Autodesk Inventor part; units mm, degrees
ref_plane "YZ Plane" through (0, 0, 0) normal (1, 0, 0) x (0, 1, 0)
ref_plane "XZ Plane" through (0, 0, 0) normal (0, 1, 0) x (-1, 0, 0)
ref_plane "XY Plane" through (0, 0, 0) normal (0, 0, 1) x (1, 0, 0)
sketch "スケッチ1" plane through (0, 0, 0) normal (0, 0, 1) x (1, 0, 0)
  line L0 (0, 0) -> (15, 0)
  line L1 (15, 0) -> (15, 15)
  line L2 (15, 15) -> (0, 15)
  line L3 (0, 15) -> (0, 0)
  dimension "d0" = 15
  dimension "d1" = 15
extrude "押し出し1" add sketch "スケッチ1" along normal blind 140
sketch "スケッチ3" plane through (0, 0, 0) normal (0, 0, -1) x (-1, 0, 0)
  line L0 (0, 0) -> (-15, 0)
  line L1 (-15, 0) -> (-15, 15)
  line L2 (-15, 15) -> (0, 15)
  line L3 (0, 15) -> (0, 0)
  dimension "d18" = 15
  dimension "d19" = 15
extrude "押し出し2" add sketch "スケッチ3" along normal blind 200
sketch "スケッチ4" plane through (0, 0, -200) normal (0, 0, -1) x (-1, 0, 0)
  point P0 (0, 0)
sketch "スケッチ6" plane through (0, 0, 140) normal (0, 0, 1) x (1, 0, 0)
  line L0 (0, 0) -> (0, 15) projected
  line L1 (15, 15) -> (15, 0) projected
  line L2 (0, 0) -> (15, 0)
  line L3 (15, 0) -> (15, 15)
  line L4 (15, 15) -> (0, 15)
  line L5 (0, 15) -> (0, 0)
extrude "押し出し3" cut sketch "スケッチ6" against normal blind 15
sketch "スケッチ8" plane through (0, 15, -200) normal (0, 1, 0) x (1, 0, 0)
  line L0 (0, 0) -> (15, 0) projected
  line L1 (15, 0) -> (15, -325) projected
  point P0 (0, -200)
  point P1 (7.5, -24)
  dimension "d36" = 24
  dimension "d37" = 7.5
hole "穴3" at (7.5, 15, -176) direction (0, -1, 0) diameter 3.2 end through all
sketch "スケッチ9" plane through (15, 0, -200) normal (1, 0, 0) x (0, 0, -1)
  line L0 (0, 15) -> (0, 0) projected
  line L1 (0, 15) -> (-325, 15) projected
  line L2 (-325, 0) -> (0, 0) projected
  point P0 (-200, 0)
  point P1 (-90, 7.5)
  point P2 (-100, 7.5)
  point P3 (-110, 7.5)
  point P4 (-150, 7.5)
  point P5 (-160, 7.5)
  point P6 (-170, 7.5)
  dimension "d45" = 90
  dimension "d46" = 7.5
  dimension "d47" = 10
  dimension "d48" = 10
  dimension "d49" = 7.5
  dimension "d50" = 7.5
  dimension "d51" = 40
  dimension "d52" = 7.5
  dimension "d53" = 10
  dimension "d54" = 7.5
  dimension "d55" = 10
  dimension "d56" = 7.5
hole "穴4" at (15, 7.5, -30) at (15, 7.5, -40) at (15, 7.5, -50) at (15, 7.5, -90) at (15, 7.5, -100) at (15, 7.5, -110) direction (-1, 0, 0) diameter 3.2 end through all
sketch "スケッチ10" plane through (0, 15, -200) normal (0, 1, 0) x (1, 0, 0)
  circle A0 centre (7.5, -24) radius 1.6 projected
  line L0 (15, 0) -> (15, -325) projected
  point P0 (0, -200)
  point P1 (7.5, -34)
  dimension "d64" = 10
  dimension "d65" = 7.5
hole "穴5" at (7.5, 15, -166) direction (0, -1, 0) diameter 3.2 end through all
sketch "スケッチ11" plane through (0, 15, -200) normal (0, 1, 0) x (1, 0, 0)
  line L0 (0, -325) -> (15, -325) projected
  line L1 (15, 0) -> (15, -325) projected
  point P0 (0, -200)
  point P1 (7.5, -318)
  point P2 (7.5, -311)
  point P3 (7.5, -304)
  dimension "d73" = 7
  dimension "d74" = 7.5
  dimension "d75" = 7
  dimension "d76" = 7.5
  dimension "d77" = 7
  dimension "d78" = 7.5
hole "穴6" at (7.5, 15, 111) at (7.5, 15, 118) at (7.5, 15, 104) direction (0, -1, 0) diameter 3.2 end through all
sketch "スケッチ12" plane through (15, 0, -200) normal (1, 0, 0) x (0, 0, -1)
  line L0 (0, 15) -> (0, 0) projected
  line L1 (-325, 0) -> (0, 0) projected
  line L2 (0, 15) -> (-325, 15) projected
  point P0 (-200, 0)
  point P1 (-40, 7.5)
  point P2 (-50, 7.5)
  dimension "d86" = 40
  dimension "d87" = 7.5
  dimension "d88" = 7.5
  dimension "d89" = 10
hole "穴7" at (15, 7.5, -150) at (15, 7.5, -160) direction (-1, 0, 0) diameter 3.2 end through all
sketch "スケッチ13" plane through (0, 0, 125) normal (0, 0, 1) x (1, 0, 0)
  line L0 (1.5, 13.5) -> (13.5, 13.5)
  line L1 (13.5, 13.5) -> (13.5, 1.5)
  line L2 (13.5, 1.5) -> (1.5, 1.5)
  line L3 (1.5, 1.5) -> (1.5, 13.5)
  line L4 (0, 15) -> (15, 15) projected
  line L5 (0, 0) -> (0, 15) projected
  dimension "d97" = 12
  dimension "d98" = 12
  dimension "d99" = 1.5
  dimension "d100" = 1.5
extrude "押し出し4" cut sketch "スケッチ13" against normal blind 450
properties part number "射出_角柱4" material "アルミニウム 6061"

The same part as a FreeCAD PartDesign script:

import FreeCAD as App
import Part
import Sketcher


def add_polygon(sketch, points):
    """Adds a closed chain of lines whose ends are joined by coincident constraints."""
    first, n = sketch.GeometryCount, len(points)
    for a, b in zip(points, points[1:] + points[:1]):
        sketch.addGeometry(Part.LineSegment(App.Vector(*a, 0), App.Vector(*b, 0)), False)
    for i in range(n):
        sketch.addConstraint(Sketcher.Constraint("Coincident", first + i, 2, first + (i + 1) % n, 1))

doc = App.newDocument("Part")
body = doc.addObject("PartDesign::Body", "Body")

sketch1 = doc.addObject("Sketcher::SketchObject", "Sketch")
body.addObject(sketch1)
sketch1.AttachmentSupport = (doc.XY_Plane, [""])
sketch1.MapMode = "FlatFace"
add_polygon(sketch1, [(0, 15), (0, 0), (15, 0), (15, 15)])
sketch1.addConstraint(Sketcher.Constraint("Vertical", 0))
sketch1.addConstraint(Sketcher.Constraint("Horizontal", 1))
sketch1.addConstraint(Sketcher.Constraint("Vertical", 2))
sketch1.addConstraint(Sketcher.Constraint("Horizontal", 3))
sketch1.addConstraint(Sketcher.Constraint("Coincident", 0, 2, -1, 1))
sketch1.addConstraint(Sketcher.Constraint("Equal", 3, 0))
sketch1.addConstraint(Sketcher.Constraint("DistanceX", 1, 1, 1, 2, 15.0))
pad1 = doc.addObject("PartDesign::Pad", "Pad")
body.addObject(pad1)
pad1.Profile = sketch1
pad1.Length = 140

sketch2 = doc.addObject("Sketcher::SketchObject", "Sketch001")
body.addObject(sketch2)
sketch2.AttachmentSupport = (doc.XY_Plane, [""])
sketch2.MapMode = "FlatFace"
add_polygon(sketch2, [(15, 0), (0, 0), (0, 15), (15, 15)])
sketch2.addConstraint(Sketcher.Constraint("Horizontal", 0))
sketch2.addConstraint(Sketcher.Constraint("Vertical", 1))
sketch2.addConstraint(Sketcher.Constraint("Horizontal", 2))
sketch2.addConstraint(Sketcher.Constraint("Vertical", 3))
sketch2.addConstraint(Sketcher.Constraint("Coincident", 0, 2, -1, 1))
sketch2.addConstraint(Sketcher.Constraint("Equal", 2, 1))
sketch2.addConstraint(Sketcher.Constraint("DistanceX", 0, 2, 0, 1, 15.0))
pad2 = doc.addObject("PartDesign::Pad", "Pad001")
body.addObject(pad2)
pad2.Profile = sketch2
pad2.Length = 200
pad2.Reversed = True

sketch3 = doc.addObject("Sketcher::SketchObject", "Sketch002")
body.addObject(sketch3)
sketch3.AttachmentSupport = (doc.XY_Plane, [""])
sketch3.MapMode = "FlatFace"
sketch3.AttachmentOffset = App.Placement(App.Vector(0, 0, 140), App.Rotation())
add_polygon(sketch3, [(0, 15), (0, 0), (15, 0), (15, 15)])
sketch3.addConstraint(Sketcher.Constraint("Vertical", 0))
sketch3.addConstraint(Sketcher.Constraint("Horizontal", 1))
sketch3.addConstraint(Sketcher.Constraint("Vertical", 2))
sketch3.addConstraint(Sketcher.Constraint("Horizontal", 3))
sketch3.addConstraint(Sketcher.Constraint("Coincident", 0, 2, -1, 1))
sketch3.addConstraint(Sketcher.Constraint("Equal", 3, 0))
sketch3.addConstraint(Sketcher.Constraint("DistanceX", 1, 1, 1, 2, 15.0))
pocket1 = doc.addObject("PartDesign::Pocket", "Pocket")
body.addObject(pocket1)
pocket1.Profile = sketch3
pocket1.Length = 15

sketch4 = doc.addObject("Sketcher::SketchObject", "Sketch003")
body.addObject(sketch4)
sketch4.AttachmentSupport = (doc.XZ_Plane, [""])
sketch4.MapMode = "FlatFace"
sketch4.AttachmentOffset = App.Placement(App.Vector(0, 0, -15), App.Rotation())
sketch4.addGeometry(Part.Circle(App.Vector(7.5, -176, 0), App.Vector(0, 0, 1), 1.6), False)
sketch4.addConstraint(Sketcher.Constraint("Diameter", 0, 3.2))
sketch4.addConstraint(Sketcher.Constraint("DistanceY", 0, 3, -1, 1, 176.0))
sketch4.addConstraint(Sketcher.Constraint("DistanceX", -1, 1, 0, 3, 7.5))
doc.recompute()
hole = doc.addObject("PartDesign::Hole", "Hole")
body.addObject(hole)
hole.Profile = sketch4
hole.ThreadType = "None"
hole.Diameter = 3.2
hole.DepthType = "ThroughAll"
hole.Reversed = True

sketch5 = doc.addObject("Sketcher::SketchObject", "Sketch004")
body.addObject(sketch5)
sketch5.AttachmentSupport = (doc.YZ_Plane, [""])
sketch5.MapMode = "FlatFace"
sketch5.AttachmentOffset = App.Placement(App.Vector(0, 0, 15), App.Rotation())
sketch5.addGeometry(Part.Circle(App.Vector(7.5, -30, 0), App.Vector(0, 0, 1), 1.6), False)
sketch5.addGeometry(Part.Circle(App.Vector(7.5, -40, 0), App.Vector(0, 0, 1), 1.6), False)
sketch5.addGeometry(Part.Circle(App.Vector(7.5, -50, 0), App.Vector(0, 0, 1), 1.6), False)
sketch5.addGeometry(Part.Circle(App.Vector(7.5, -90, 0), App.Vector(0, 0, 1), 1.6), False)
sketch5.addGeometry(Part.Circle(App.Vector(7.5, -100, 0), App.Vector(0, 0, 1), 1.6), False)
sketch5.addGeometry(Part.Circle(App.Vector(7.5, -110, 0), App.Vector(0, 0, 1), 1.6), False)
sketch5.addConstraint(Sketcher.Constraint("Equal", 0, 1))
sketch5.addConstraint(Sketcher.Constraint("Equal", 1, 2))
sketch5.addConstraint(Sketcher.Constraint("Equal", 2, 3))
sketch5.addConstraint(Sketcher.Constraint("Equal", 3, 4))
sketch5.addConstraint(Sketcher.Constraint("Equal", 4, 5))
sketch5.addConstraint(Sketcher.Constraint("Vertical", 0, 3, 1, 3))
sketch5.addConstraint(Sketcher.Constraint("Vertical", 1, 3, 2, 3))
sketch5.addConstraint(Sketcher.Constraint("Vertical", 2, 3, 3, 3))
sketch5.addConstraint(Sketcher.Constraint("Vertical", 3, 3, 4, 3))
sketch5.addConstraint(Sketcher.Constraint("Vertical", 4, 3, 5, 3))
sketch5.addConstraint(Sketcher.Constraint("Diameter", 0, 3.2))
sketch5.addConstraint(Sketcher.Constraint("DistanceY", 0, 3, -1, 1, 30.0))
sketch5.addConstraint(Sketcher.Constraint("DistanceY", 1, 3, -1, 1, 40.0))
sketch5.addConstraint(Sketcher.Constraint("DistanceY", 2, 3, -1, 1, 50.0))
sketch5.addConstraint(Sketcher.Constraint("DistanceY", 3, 3, -1, 1, 90.0))
sketch5.addConstraint(Sketcher.Constraint("DistanceY", 4, 3, -1, 1, 100.0))
sketch5.addConstraint(Sketcher.Constraint("DistanceY", 5, 3, -1, 1, 110.0))
sketch5.addConstraint(Sketcher.Constraint("DistanceX", -1, 1, 0, 3, 7.5))
doc.recompute()
hole2 = doc.addObject("PartDesign::Hole", "Hole001")
body.addObject(hole2)
hole2.Profile = sketch5
hole2.ThreadType = "None"
hole2.Diameter = 3.2
hole2.DepthType = "ThroughAll"

sketch6 = doc.addObject("Sketcher::SketchObject", "Sketch005")
body.addObject(sketch6)
sketch6.AttachmentSupport = (doc.XZ_Plane, [""])
sketch6.MapMode = "FlatFace"
sketch6.AttachmentOffset = App.Placement(App.Vector(0, 0, -15), App.Rotation())
sketch6.addGeometry(Part.Circle(App.Vector(7.5, -166, 0), App.Vector(0, 0, 1), 1.6), False)
sketch6.addConstraint(Sketcher.Constraint("Diameter", 0, 3.2))
sketch6.addConstraint(Sketcher.Constraint("DistanceY", 0, 3, -1, 1, 166.0))
sketch6.addConstraint(Sketcher.Constraint("DistanceX", -1, 1, 0, 3, 7.5))
doc.recompute()
hole3 = doc.addObject("PartDesign::Hole", "Hole002")
body.addObject(hole3)
hole3.Profile = sketch6
hole3.ThreadType = "None"
hole3.Diameter = 3.2
hole3.DepthType = "ThroughAll"
hole3.Reversed = True

sketch7 = doc.addObject("Sketcher::SketchObject", "Sketch006")
body.addObject(sketch7)
sketch7.AttachmentSupport = (doc.XZ_Plane, [""])
sketch7.MapMode = "FlatFace"
sketch7.AttachmentOffset = App.Placement(App.Vector(0, 0, -15), App.Rotation())
sketch7.addGeometry(Part.Circle(App.Vector(7.5, 111, 0), App.Vector(0, 0, 1), 1.6), False)
sketch7.addGeometry(Part.Circle(App.Vector(7.5, 118, 0), App.Vector(0, 0, 1), 1.6), False)
sketch7.addGeometry(Part.Circle(App.Vector(7.5, 104, 0), App.Vector(0, 0, 1), 1.6), False)
sketch7.addConstraint(Sketcher.Constraint("Equal", 0, 1))
sketch7.addConstraint(Sketcher.Constraint("Equal", 1, 2))
sketch7.addConstraint(Sketcher.Constraint("Vertical", 0, 3, 1, 3))
sketch7.addConstraint(Sketcher.Constraint("Vertical", 1, 3, 2, 3))
sketch7.addConstraint(Sketcher.Constraint("Diameter", 0, 3.2))
sketch7.addConstraint(Sketcher.Constraint("DistanceY", -1, 1, 0, 3, 111.0))
sketch7.addConstraint(Sketcher.Constraint("DistanceY", -1, 1, 1, 3, 118.0))
sketch7.addConstraint(Sketcher.Constraint("DistanceY", -1, 1, 2, 3, 104.0))
sketch7.addConstraint(Sketcher.Constraint("DistanceX", -1, 1, 0, 3, 7.5))
doc.recompute()
hole4 = doc.addObject("PartDesign::Hole", "Hole003")
body.addObject(hole4)
hole4.Profile = sketch7
hole4.ThreadType = "None"
hole4.Diameter = 3.2
hole4.DepthType = "ThroughAll"
hole4.Reversed = True

sketch8 = doc.addObject("Sketcher::SketchObject", "Sketch007")
body.addObject(sketch8)
sketch8.AttachmentSupport = (doc.YZ_Plane, [""])
sketch8.MapMode = "FlatFace"
sketch8.AttachmentOffset = App.Placement(App.Vector(0, 0, 15), App.Rotation())
sketch8.addGeometry(Part.Circle(App.Vector(7.5, -150, 0), App.Vector(0, 0, 1), 1.6), False)
sketch8.addGeometry(Part.Circle(App.Vector(7.5, -160, 0), App.Vector(0, 0, 1), 1.6), False)
sketch8.addConstraint(Sketcher.Constraint("Equal", 0, 1))
sketch8.addConstraint(Sketcher.Constraint("Vertical", 0, 3, 1, 3))
sketch8.addConstraint(Sketcher.Constraint("Diameter", 0, 3.2))
sketch8.addConstraint(Sketcher.Constraint("DistanceY", 0, 3, -1, 1, 150.0))
sketch8.addConstraint(Sketcher.Constraint("DistanceY", 1, 3, -1, 1, 160.0))
sketch8.addConstraint(Sketcher.Constraint("DistanceX", -1, 1, 0, 3, 7.5))
doc.recompute()
hole5 = doc.addObject("PartDesign::Hole", "Hole004")
body.addObject(hole5)
hole5.Profile = sketch8
hole5.ThreadType = "None"
hole5.Diameter = 3.2
hole5.DepthType = "ThroughAll"

sketch9 = doc.addObject("Sketcher::SketchObject", "Sketch008")
body.addObject(sketch9)
sketch9.AttachmentSupport = (doc.XY_Plane, [""])
sketch9.MapMode = "FlatFace"
sketch9.AttachmentOffset = App.Placement(App.Vector(0, 0, 125), App.Rotation())
add_polygon(sketch9, [(14, 14), (2, 14), (2, 2), (14, 2)])
sketch9.addConstraint(Sketcher.Constraint("Horizontal", 0))
sketch9.addConstraint(Sketcher.Constraint("Vertical", 1))
sketch9.addConstraint(Sketcher.Constraint("Horizontal", 2))
sketch9.addConstraint(Sketcher.Constraint("Vertical", 3))
sketch9.addConstraint(Sketcher.Constraint("Equal", 2, 1))
sketch9.addConstraint(Sketcher.Constraint("DistanceX", 0, 2, 0, 1, 12.0))
sketch9.addConstraint(Sketcher.Constraint("DistanceX", -1, 1, 0, 2, 1.5))
sketch9.addConstraint(Sketcher.Constraint("DistanceY", -1, 1, 1, 2, 1.5))
pocket2 = doc.addObject("PartDesign::Pocket", "Pocket001")
body.addObject(pocket2)
pocket2.Profile = sketch9
pocket2.Length = 450

doc.recompute()
